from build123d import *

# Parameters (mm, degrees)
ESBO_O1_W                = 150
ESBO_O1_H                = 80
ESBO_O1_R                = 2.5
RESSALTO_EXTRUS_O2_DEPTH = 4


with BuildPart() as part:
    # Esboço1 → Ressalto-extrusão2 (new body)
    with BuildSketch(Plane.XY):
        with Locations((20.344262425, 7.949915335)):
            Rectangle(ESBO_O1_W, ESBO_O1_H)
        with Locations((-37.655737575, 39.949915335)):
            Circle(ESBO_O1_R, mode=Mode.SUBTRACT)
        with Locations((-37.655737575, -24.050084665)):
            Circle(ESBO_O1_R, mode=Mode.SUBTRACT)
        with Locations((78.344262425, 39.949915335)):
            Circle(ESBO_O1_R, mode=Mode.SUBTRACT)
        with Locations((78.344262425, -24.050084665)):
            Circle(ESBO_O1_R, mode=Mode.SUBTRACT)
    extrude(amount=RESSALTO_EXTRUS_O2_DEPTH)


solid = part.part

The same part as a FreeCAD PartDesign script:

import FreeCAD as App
import Part
import Sketcher
from FreeCAD import Vector


def add_polygon(sketch, points):
    """Adds a closed chain of lines whose ends are joined by coincident constraints."""
    first, n = sketch.GeometryCount, len(points)
    for a, b in zip(points, points[1:] + points[:1]):
        sketch.addGeometry(Part.LineSegment(App.Vector(*a, 0), App.Vector(*b, 0)), False)
    for i in range(n):
        sketch.addConstraint(Sketcher.Constraint("Coincident", first + i, 2, first + (i + 1) % n, 1))

doc = App.newDocument("Part")
params = doc.addObject("Spreadsheet::Sheet", "Params")
for row, (alias, value) in enumerate([
    ("sketch1_diameter", "5 mm"),
    ("sketch1_width", "150 mm"),
    ("sketch1_height", "80 mm"),
    ("pad1_length", "4 mm"),
], start=1):
    params.set(f"A{row}", alias)
    params.set(f"B{row}", "=" + value)
    params.setAlias(f"B{row}", alias)

body = doc.addObject("PartDesign::Body", "Body")

sketch1 = doc.addObject("Sketcher::SketchObject", "Sketch")
body.addObject(sketch1)
sketch1.AttachmentSupport = (doc.XY_Plane, [""])
sketch1.MapMode = "FlatFace"
add_polygon(sketch1, [(-54.7, 47.9), (-54.7, -32.1), (95.3, -32.1), (95.3, 47.9)])
sketch1.addGeometry(Part.Circle(Vector(-37.7, -24.1, 0), Vector(0, 0, 1), 2.5), False)
sketch1.addGeometry(Part.Circle(Vector(78.3, -24.1, 0), Vector(0, 0, 1), 2.5), False)
sketch1.addGeometry(Part.Circle(Vector(-37.7, 39.9, 0), Vector(0, 0, 1), 2.5), False)
sketch1.addGeometry(Part.Circle(Vector(78.3, 39.9, 0), Vector(0, 0, 1), 2.5), False)
sketch1.addConstraint(Sketcher.Constraint("Vertical", 0))
sketch1.addConstraint(Sketcher.Constraint("Horizontal", 1))
sketch1.addConstraint(Sketcher.Constraint("Vertical", 2))
sketch1.addConstraint(Sketcher.Constraint("Horizontal", 3))
sketch1.addConstraint(Sketcher.Constraint("Equal", 4, 5))
sketch1.addConstraint(Sketcher.Constraint("Equal", 5, 6))
sketch1.addConstraint(Sketcher.Constraint("Equal", 6, 7))
sketch1.addConstraint(Sketcher.Constraint("Horizontal", 4, 3, 5, 3))
sketch1.addConstraint(Sketcher.Constraint("Horizontal", 6, 3, 7, 3))
sketch1.addConstraint(Sketcher.Constraint("Vertical", 4, 3, 6, 3))
sketch1.addConstraint(Sketcher.Constraint("Vertical", 5, 3, 7, 3))
sketch1.addConstraint(Sketcher.Constraint("Diameter", 4, 5.0))
sketch1.addConstraint(Sketcher.Constraint("DistanceX", 1, 1, 1, 2, 150.0))
sketch1.addConstraint(Sketcher.Constraint("DistanceY", 0, 2, 0, 1, 80.0))
sketch1.addConstraint(Sketcher.Constraint("DistanceX", 4, 3, 5, 3, 116.0))
sketch1.addConstraint(Sketcher.Constraint("DistanceY", 4, 3, 6, 3, 64.0))
sketch1.addConstraint(Sketcher.Constraint("DistanceX", 0, 2, 4, 3, 17.0))
sketch1.addConstraint(Sketcher.Constraint("DistanceY", 0, 2, 4, 3, 8.0))
sketch1.addConstraint(Sketcher.Constraint("DistanceX", 4, 3, -1, 1, 37.655738))
sketch1.addConstraint(Sketcher.Constraint("DistanceY", 4, 3, -1, 1, 24.050085))
sketch1.setExpression("Constraints[15]", "Params.sketch1_diameter")
sketch1.setExpression("Constraints[16]", "Params.sketch1_width")
sketch1.setExpression("Constraints[17]", "Params.sketch1_height")
pad1 = doc.addObject("PartDesign::Pad", "Pad")
body.addObject(pad1)
pad1.Profile = sketch1
pad1.setExpression("Length", "Params.pad1_length")

doc.recompute()
